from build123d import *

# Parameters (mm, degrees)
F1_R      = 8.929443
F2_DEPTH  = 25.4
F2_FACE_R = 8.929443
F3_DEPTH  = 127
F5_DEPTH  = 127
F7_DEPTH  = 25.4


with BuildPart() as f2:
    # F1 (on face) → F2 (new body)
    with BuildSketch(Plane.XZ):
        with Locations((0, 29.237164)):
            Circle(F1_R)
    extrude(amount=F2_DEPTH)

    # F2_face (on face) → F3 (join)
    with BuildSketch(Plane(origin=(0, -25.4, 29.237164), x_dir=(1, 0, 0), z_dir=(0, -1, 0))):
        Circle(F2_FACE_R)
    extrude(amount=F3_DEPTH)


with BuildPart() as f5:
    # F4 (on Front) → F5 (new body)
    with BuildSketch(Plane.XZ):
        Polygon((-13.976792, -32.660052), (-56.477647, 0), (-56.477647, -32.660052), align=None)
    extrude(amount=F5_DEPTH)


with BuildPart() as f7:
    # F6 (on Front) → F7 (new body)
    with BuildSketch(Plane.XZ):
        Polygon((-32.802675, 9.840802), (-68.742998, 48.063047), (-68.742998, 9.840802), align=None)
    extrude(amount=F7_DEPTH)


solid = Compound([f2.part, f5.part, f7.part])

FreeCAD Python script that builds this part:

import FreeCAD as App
import Part
import Sketcher

V = App.Vector
Q = App.Units.Quantity


def add_polygon(sketch, points):
    """Adds a closed chain of lines whose ends are joined by coincident constraints."""
    first, n = sketch.GeometryCount, len(points)
    for a, b in zip(points, points[1:] + points[:1]):
        sketch.addGeometry(Part.LineSegment(App.Vector(*a, 0), App.Vector(*b, 0)), False)
    for i in range(n):
        sketch.addConstraint(Sketcher.Constraint("Coincident", first + i, 2, first + (i + 1) % n, 1))

doc = App.newDocument("Part")
body = doc.addObject("PartDesign::Body", "Body")

sketch1 = body.newObject("Sketcher::SketchObject", "Sketch")
sketch1.AttachmentSupport = (doc.getObject("XZ_Plane"), [""])
sketch1.MapMode = "FlatFace"
sketch1.addGeometry(Part.Circle(V(0, 29, 0), V(0, 0, 1), 9), False)
sketch1.addConstraint([
    Sketcher.Constraint("PointOnObject", 0, 3, -2),
    Sketcher.Constraint("Diameter", 0, 17.858886),
    Sketcher.Constraint("DistanceY", -1, 1, 0, 3, 29.237164),
])
pad1 = body.newObject("PartDesign::Pad", "Pad")
pad1.Profile = sketch1
pad1.Length = Q("1 in")

sketch2 = body.newObject("Sketcher::SketchObject", "Sketch001")
sketch2.AttachmentSupport = (doc.getObject("XZ_Plane"), [""])
sketch2.MapMode = "FlatFace"
sketch2.AttachmentOffset = App.Placement(V(0, 0, 1 * 25.4), App.Rotation())
sketch2.addGeometry(Part.Circle(V(0, 29, 0), V(0, 0, 1), 9), False)
sketch2.addConstraint([
    Sketcher.Constraint("PointOnObject", 0, 3, -2),
    Sketcher.Constraint("Diameter", 0, 17.858886),
    Sketcher.Constraint("DistanceY", -1, 1, 0, 3, 29.237164),
])
pad2 = body.newObject("PartDesign::Pad", "Pad001")
pad2.Profile = sketch2
pad2.Length = Q("5 in")
body2 = doc.addObject("PartDesign::Body", "Body001")

sketch3 = body2.newObject("Sketcher::SketchObject", "Sketch002")
sketch3.AttachmentSupport = (doc.getObject("XZ_Plane001"), [""])
sketch3.MapMode = "FlatFace"
add_polygon(sketch3, [(-14, -33), (-56, 0), (-56, -33)])
sketch3.addConstraint([
    Sketcher.Constraint("Vertical", 1),
    Sketcher.Constraint("Horizontal", 2),
    Sketcher.Constraint("PointOnObject", 0, 2, -1),
    Sketcher.Constraint("Distance", 0, 53.600389),
    Sketcher.Constraint("DistanceX", 2, 1, 2, 2, 42.500855),
    Sketcher.Constraint("DistanceX", 0, 2, -1, 1, 56.477647),
])
pad3 = body2.newObject("PartDesign::Pad", "Pad002")
pad3.Profile = sketch3
pad3.Length = Q("5 in")
body3 = doc.addObject("PartDesign::Body", "Body002")

sketch4 = body3.newObject("Sketcher::SketchObject", "Sketch003")
sketch4.AttachmentSupport = (doc.getObject("XZ_Plane002"), [""])
sketch4.MapMode = "FlatFace"
add_polygon(sketch4, [(-33, 10), (-69, 48), (-69, 10)])
sketch4.addConstraint([
    Sketcher.Constraint("Vertical", 1),
    Sketcher.Constraint("Horizontal", 2),
    Sketcher.Constraint("DistanceX", 0, 2, -1, 1, 68.742998),
    Sketcher.Constraint("DistanceX", 2, 1, 2, 2, 35.940323),
    Sketcher.Constraint("DistanceY", 1, 2, 1, 1, 38.222245),
    Sketcher.Constraint("DistanceY", -1, 1, 0, 2, 48.063047),
])
pad4 = body3.newObject("PartDesign::Pad", "Pad003")
pad4.Profile = sketch4
pad4.Length = Q("1 in")

doc.recompute()
